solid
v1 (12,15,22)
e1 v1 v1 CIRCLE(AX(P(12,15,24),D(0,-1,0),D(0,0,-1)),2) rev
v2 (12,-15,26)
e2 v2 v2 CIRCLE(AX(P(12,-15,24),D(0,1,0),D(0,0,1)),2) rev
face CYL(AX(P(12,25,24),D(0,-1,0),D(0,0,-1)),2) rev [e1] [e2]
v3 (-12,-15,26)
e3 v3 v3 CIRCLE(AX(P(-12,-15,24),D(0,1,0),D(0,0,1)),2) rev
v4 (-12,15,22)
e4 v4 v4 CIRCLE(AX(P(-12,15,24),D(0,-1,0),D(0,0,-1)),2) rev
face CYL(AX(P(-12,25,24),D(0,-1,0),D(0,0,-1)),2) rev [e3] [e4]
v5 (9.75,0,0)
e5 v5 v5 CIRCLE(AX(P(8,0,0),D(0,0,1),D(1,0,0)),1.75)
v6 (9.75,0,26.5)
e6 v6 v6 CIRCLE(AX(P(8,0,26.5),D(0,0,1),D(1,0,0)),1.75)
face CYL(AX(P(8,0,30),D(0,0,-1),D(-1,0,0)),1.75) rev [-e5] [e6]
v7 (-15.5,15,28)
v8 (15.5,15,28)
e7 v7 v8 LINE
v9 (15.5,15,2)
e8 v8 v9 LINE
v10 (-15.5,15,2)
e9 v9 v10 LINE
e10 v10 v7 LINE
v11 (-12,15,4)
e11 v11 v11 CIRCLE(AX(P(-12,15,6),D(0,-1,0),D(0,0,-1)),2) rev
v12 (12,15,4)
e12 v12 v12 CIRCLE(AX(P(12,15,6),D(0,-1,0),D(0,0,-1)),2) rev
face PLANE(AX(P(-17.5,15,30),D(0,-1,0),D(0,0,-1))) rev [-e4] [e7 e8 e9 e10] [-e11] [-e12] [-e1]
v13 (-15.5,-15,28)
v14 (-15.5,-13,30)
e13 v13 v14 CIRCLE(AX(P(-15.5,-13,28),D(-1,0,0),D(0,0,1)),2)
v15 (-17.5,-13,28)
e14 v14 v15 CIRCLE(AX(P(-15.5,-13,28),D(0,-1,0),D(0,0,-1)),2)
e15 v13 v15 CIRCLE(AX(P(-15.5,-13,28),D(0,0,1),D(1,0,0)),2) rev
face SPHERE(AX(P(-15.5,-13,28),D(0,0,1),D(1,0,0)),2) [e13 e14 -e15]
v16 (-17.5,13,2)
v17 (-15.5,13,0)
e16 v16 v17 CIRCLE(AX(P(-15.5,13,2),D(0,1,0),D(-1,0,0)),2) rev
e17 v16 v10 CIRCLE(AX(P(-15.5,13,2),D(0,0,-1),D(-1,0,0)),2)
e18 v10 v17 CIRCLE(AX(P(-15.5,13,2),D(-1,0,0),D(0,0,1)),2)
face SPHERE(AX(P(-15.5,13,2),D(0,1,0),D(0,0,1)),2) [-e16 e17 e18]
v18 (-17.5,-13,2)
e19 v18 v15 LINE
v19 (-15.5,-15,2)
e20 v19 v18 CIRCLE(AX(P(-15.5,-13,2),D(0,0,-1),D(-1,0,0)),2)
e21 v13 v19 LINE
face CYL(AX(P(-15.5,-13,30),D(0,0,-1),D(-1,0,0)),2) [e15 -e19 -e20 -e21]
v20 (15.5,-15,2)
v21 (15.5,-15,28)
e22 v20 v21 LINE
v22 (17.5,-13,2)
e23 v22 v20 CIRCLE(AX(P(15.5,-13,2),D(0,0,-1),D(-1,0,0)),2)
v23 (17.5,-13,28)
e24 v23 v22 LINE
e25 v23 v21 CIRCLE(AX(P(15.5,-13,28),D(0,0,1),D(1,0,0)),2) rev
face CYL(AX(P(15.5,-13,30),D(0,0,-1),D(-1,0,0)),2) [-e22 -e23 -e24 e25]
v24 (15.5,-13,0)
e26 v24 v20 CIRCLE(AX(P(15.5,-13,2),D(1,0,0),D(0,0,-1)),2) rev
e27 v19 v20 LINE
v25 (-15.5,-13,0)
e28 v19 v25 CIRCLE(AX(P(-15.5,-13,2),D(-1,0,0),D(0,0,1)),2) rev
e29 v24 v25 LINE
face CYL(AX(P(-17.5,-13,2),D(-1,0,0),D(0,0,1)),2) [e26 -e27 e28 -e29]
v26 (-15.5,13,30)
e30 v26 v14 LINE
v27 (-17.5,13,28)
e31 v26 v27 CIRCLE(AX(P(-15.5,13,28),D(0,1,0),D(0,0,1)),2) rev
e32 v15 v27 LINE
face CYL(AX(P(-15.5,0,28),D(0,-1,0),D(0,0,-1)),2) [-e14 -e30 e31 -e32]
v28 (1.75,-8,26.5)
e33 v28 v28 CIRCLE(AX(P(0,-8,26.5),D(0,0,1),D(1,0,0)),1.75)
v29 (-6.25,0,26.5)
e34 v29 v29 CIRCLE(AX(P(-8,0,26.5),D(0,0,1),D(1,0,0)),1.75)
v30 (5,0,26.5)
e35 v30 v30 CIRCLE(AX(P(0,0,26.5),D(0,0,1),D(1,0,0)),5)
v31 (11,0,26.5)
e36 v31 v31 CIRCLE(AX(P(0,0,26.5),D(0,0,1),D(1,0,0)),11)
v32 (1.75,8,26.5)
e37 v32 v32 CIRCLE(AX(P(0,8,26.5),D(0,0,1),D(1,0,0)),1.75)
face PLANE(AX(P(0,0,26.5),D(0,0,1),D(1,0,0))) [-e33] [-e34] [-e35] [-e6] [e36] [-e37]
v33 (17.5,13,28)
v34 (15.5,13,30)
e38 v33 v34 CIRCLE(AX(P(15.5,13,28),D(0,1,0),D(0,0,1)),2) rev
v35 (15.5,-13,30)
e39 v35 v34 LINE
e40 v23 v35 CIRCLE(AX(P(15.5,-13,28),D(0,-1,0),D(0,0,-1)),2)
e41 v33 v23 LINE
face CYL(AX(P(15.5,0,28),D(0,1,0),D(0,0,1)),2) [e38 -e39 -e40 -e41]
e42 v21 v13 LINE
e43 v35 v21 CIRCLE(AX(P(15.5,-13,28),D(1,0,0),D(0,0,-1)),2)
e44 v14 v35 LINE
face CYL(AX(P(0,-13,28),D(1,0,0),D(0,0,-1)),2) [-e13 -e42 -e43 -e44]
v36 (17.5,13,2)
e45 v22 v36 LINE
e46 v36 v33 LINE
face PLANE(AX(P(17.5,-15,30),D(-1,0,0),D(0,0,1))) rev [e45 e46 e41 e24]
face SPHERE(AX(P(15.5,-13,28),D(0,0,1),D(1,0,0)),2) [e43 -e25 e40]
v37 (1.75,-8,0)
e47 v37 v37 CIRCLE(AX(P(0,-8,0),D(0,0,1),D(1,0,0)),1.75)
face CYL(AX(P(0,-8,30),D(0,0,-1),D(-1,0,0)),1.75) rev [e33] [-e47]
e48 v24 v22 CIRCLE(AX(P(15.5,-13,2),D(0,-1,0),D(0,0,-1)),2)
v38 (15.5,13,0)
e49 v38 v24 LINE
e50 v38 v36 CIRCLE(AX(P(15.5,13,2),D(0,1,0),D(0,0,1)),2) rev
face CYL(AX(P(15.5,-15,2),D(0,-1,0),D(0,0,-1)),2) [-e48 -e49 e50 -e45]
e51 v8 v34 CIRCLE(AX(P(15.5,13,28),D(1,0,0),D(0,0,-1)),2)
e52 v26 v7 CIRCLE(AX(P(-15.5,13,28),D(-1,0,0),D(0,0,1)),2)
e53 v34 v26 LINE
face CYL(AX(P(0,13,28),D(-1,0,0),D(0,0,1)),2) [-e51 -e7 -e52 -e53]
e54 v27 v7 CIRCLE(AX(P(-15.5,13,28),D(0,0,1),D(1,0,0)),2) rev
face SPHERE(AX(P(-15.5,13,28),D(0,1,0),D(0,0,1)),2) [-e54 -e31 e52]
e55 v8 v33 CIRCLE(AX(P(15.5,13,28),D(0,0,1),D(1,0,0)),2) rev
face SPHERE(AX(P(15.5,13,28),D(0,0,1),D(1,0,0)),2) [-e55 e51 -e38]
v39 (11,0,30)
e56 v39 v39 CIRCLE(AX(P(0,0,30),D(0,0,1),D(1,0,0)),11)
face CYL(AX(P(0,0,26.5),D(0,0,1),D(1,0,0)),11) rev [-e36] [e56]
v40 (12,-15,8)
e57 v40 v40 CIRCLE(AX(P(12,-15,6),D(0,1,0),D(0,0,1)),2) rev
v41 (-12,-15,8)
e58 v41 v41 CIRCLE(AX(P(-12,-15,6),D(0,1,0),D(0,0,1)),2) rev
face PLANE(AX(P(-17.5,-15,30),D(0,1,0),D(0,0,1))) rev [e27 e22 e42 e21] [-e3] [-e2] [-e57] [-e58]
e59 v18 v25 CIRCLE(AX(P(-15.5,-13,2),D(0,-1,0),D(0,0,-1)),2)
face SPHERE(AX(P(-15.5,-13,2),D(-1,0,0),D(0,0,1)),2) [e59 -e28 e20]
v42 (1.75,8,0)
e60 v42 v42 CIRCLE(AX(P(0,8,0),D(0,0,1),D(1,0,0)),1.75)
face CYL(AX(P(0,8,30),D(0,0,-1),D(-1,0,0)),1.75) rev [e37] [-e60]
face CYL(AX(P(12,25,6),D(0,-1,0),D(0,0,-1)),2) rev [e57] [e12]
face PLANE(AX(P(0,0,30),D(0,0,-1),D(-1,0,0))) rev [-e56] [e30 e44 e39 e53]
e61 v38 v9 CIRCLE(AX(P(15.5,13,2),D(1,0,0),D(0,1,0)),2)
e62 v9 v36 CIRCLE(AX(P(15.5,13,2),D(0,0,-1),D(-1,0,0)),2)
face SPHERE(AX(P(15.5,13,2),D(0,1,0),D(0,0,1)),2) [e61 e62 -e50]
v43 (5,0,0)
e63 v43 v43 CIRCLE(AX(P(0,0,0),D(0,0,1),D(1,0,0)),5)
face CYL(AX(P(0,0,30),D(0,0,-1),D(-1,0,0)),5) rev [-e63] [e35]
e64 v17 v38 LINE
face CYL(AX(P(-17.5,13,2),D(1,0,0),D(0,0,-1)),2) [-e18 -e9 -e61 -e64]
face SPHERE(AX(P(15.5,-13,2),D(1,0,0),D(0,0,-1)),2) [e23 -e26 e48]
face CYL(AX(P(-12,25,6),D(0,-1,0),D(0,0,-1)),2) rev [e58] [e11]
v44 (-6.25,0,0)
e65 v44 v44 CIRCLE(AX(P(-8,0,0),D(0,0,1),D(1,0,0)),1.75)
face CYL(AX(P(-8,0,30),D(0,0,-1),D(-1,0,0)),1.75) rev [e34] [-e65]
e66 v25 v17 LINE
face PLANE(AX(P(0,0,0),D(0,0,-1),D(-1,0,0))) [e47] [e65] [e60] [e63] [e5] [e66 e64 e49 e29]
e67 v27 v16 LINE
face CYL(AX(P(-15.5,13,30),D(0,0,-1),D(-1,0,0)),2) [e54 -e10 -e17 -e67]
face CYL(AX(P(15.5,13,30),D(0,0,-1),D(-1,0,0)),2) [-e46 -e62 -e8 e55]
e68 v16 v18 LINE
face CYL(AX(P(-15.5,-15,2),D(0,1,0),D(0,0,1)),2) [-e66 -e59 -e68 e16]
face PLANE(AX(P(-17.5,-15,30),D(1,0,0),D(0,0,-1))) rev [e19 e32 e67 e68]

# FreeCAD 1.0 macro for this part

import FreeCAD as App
import Part
import Sketcher

V = App.Vector


def edges_at(feature, points):
    """Names of the edges that pass closest to the given points."""
    edges = feature.Shape.Edges
    near = lambda p: min(range(len(edges)), key=lambda i: edges[i].distToShape(Part.Vertex(*p))[0])
    return sorted({f"Edge{near(p) + 1}" for p in points})


def add_polygon(sketch, points):
    """Adds a closed chain of lines whose ends are joined by coincident constraints."""
    first, n = sketch.GeometryCount, len(points)
    for a, b in zip(points, points[1:] + points[:1]):
        sketch.addGeometry(Part.LineSegment(App.Vector(*a, 0), App.Vector(*b, 0)), False)
    for i in range(n):
        sketch.addConstraint(Sketcher.Constraint("Coincident", first + i, 2, first + (i + 1) % n, 1))

doc = App.newDocument("Part")
body = doc.addObject("PartDesign::Body", "Body")

# Sketch on XY plane
sketch1 = body.newObject("Sketcher::SketchObject", "Sketch")
sketch1.AttachmentSupport = (doc.getObject("XY_Plane"), [""])
sketch1.MapMode = "FlatFace"
add_polygon(sketch1, [(-17.5, 15), (-17.5, -15), (17.5, -15), (17.5, 15)])  # lines 0-3
sketch1.addGeometry(Part.Circle(V(0, -8, 0), V(0, 0, 1), 1.8), False)  # 4
sketch1.addGeometry(Part.Circle(V(-8, 0, 0), V(0, 0, 1), 1.8), False)  # 5
sketch1.addGeometry(Part.Circle(V(0, 0, 0), V(0, 0, 1), 5), False)  # 6
sketch1.addGeometry(Part.Circle(V(8, 0, 0), V(0, 0, 1), 1.8), False)  # 7
sketch1.addGeometry(Part.Circle(V(0, 8, 0), V(0, 0, 1), 1.8), False)  # 8
sketch1.addConstraint([
    Sketcher.Constraint("Vertical", 0),
    Sketcher.Constraint("Horizontal", 1),
    Sketcher.Constraint("Vertical", 2),
    Sketcher.Constraint("Horizontal", 3),
    Sketcher.Constraint("Coincident", 6, 3, -1, 1),
    Sketcher.Constraint("Equal", 4, 5),
    Sketcher.Constraint("Equal", 5, 7),
    Sketcher.Constraint("Equal", 7, 8),
    Sketcher.Constraint("Symmetric", 5, 3, 7, 3, -1, 1),
    Sketcher.Constraint("Symmetric", 4, 3, 8, 3, -1, 1),
    Sketcher.Constraint("Symmetric", 0, 2, 2, 2, -1, 1),
    Sketcher.Constraint("PointOnObject", 4, 3, -2),
    Sketcher.Constraint("PointOnObject", 5, 3, -1),
    Sketcher.Constraint("Diameter", 6, 10.0),
    Sketcher.Constraint("Diameter", 4, 3.5),
    Sketcher.Constraint("DistanceX", 1, 1, 1, 2, 35.0),
    Sketcher.Constraint("DistanceY", 0, 2, 0, 1, 30.0),
    Sketcher.Constraint("DistanceY", 4, 3, -1, 1, 8.0),
    Sketcher.Constraint("DistanceX", 5, 3, -1, 1, 8.0),
])
pad1 = body.newObject("PartDesign::Pad", "Pad")
pad1.Profile = sketch1
pad1.Length = 30

# Sketch on XY plane
sketch2 = body.newObject("Sketcher::SketchObject", "Sketch001")
sketch2.AttachmentSupport = (doc.getObject("XY_Plane"), [""])
sketch2.MapMode = "FlatFace"
sketch2.AttachmentOffset = App.Placement(V(0, 0, 30), App.Rotation())
sketch2.addGeometry(Part.Circle(V(0, 0, 0), V(0, 0, 1), 11), False)
sketch2.addConstraint([
    Sketcher.Constraint("Coincident", 0, 3, -1, 1),
    Sketcher.Constraint("Diameter", 0, 22.0),
])
pocket1 = body.newObject("PartDesign::Pocket", "Pocket")
pocket1.Profile = sketch2
pocket1.Length = 3.5
doc.recompute()

fillet = body.newObject("PartDesign::Fillet", "Fillet")
fillet.Base = (pocket1, edges_at(pocket1, [
    (-17.5, 0, 30),
    (0, -15, 30),
    (17.5, 0, 30),
    (0, -15, 0),
    (-17.5, 0, 0),
    (0, 15, 0),
    (17.5, 0, 0),
    (17.5, -15, 15),
    (-17.5, -15, 15),
    (-17.5, 15, 15),
    (17.5, 15, 15),
    (0, 15, 30),
]))
fillet.Radius = 2

# Sketch on XZ plane
sketch3 = body.newObject("Sketcher::SketchObject", "Sketch002")
sketch3.AttachmentSupport = (doc.getObject("XZ_Plane"), [""])
sketch3.MapMode = "FlatFace"
sketch3.AttachmentOffset = App.Placement(V(0, 0, -15), App.Rotation())
sketch3.addGeometry([
    Part.Circle(V(-12, 24, 0), V(0, 0, 1), 2),
    Part.Circle(V(12, 24, 0), V(0, 0, 1), 2),
    Part.Circle(V(-12, 6, 0), V(0, 0, 1), 2),
    Part.Circle(V(12, 6, 0), V(0, 0, 1), 2),
], False)
sketch3.addConstraint([
    Sketcher.Constraint("Equal", 0, 1),
    Sketcher.Constraint("Equal", 1, 2),
    Sketcher.Constraint("Equal", 2, 3),
    Sketcher.Constraint("Symmetric", 0, 3, 1, 3, -2),
    Sketcher.Constraint("Symmetric", 2, 3, 3, 3, -2),
    Sketcher.Constraint("Vertical", 0, 3, 2, 3),
    Sketcher.Constraint("Diameter", 0, 4.0),
    Sketcher.Constraint("DistanceX", 0, 3, -1, 1, 12.0),
    Sketcher.Constraint("DistanceY", -1, 1, 0, 3, 24.0),
    Sketcher.Constraint("DistanceY", -1, 1, 2, 3, 6.0),
])
pocket2 = body.newObject("PartDesign::Pocket", "Pocket001")
pocket2.Profile = sketch3
pocket2.Type = "ThroughAll"
pocket2.Midplane = True

doc.recompute()
